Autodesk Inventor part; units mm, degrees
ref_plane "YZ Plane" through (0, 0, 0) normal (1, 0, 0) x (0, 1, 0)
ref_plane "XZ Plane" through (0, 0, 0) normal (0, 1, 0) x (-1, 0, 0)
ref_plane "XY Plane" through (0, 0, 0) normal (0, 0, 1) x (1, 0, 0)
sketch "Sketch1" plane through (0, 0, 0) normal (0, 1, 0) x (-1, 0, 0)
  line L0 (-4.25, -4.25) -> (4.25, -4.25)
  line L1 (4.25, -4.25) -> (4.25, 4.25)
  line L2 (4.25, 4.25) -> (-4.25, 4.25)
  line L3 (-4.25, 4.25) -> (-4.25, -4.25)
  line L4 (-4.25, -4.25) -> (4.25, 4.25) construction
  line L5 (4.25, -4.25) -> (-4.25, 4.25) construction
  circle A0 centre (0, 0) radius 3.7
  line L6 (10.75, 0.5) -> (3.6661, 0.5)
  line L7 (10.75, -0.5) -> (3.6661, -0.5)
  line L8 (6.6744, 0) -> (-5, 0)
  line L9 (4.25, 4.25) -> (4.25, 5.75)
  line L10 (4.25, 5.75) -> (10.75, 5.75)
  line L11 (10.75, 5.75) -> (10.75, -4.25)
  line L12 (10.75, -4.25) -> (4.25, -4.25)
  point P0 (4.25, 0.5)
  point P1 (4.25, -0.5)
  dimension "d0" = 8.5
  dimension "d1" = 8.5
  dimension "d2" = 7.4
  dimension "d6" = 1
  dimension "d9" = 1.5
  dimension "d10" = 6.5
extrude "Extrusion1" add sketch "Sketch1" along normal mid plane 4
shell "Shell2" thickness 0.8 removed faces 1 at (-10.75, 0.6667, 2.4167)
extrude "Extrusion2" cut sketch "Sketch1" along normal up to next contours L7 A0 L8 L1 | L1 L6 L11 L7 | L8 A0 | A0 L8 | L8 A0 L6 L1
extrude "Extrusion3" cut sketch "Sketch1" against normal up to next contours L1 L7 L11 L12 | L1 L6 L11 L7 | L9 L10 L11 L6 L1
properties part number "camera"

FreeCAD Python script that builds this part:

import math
import FreeCAD as App
import Part
import Sketcher
Q = App.Units.Quantity


def faces_at(feature, points):
    """Names of the faces that lie closest to the given points."""
    faces = feature.Shape.Faces
    near = lambda p: min(range(len(faces)), key=lambda i: faces[i].distToShape(Part.Vertex(*p))[0])
    return sorted({f"Face{near(p) + 1}" for p in points})

doc = App.newDocument("Part")
body = doc.addObject("PartDesign::Body", "Body")

# Sketch on XZ plane
sketch1 = body.newObject("Sketcher::SketchObject", "Sketch")
sketch1.AttachmentSupport = (doc.getObject("XZ_Plane"), [""])
sketch1.MapMode = "FlatFace"
sketch1.addGeometry(Part.LineSegment(App.Vector(4.2, -4.2, 0), App.Vector(-10.8, -4.2, 0)), False)
sketch1.addGeometry(Part.LineSegment(App.Vector(-10.8, -4.2, 0), App.Vector(-10.8, 5.8, 0)), False)
sketch1.addGeometry(Part.LineSegment(App.Vector(-10.8, 5.8, 0), App.Vector(-4.2, 5.8, 0)), False)
sketch1.addGeometry(Part.LineSegment(App.Vector(-4.2, 5.8, 0), App.Vector(-4.2, 4.2, 0)), False)
sketch1.addGeometry(Part.LineSegment(App.Vector(-4.2, 4.2, 0), App.Vector(4.2, 4.2, 0)), False)
sketch1.addGeometry(Part.LineSegment(App.Vector(4.2, 4.2, 0), App.Vector(4.2, -4.2, 0)), False)
sketch1.addConstraint(Sketcher.Constraint("Coincident", 0, 2, 1, 1))
sketch1.addConstraint(Sketcher.Constraint("Coincident", 1, 2, 2, 1))
sketch1.addConstraint(Sketcher.Constraint("Coincident", 2, 2, 3, 1))
sketch1.addConstraint(Sketcher.Constraint("Coincident", 3, 2, 4, 1))
sketch1.addConstraint(Sketcher.Constraint("Coincident", 4, 2, 5, 1))
sketch1.addConstraint(Sketcher.Constraint("Coincident", 5, 2, 0, 1))
sketch1.addConstraint(Sketcher.Constraint("Horizontal", 0))
sketch1.addConstraint(Sketcher.Constraint("Vertical", 1))
sketch1.addConstraint(Sketcher.Constraint("Horizontal", 2))
sketch1.addConstraint(Sketcher.Constraint("Vertical", 3))
sketch1.addConstraint(Sketcher.Constraint("Horizontal", 4))
sketch1.addConstraint(Sketcher.Constraint("Vertical", 5))
sketch1.addConstraint(Sketcher.Constraint("Symmetric", 3, 2, 5, 2, -1, 1))
sketch1.addConstraint(Sketcher.Constraint("Equal", 4, 5))
sketch1.addConstraint(Sketcher.Constraint("DistanceX", 2, 1, 2, 2, Q("6.5 mm")))
sketch1.addConstraint(Sketcher.Constraint("DistanceX", 4, 1, 4, 2, Q("8.5 mm")))
sketch1.addConstraint(Sketcher.Constraint("DistanceY", 3, 2, 3, 1, Q("1.5 mm")))
pad1 = body.newObject("PartDesign::Pad", "Pad")
pad1.Profile = sketch1
pad1.Length = 4
pad1.Midplane = True
doc.recompute()

thickness = body.newObject("PartDesign::Thickness", "Thickness")
thickness.Base = (pad1, faces_at(pad1, [(-10.75, 0.667, 2.417)]))
thickness.Value = 0.8
thickness.Reversed = True
thickness.Join = "Intersection"

# Sketch on XZ plane
sketch2 = body.newObject("Sketcher::SketchObject", "Sketch001")
sketch2.AttachmentSupport = (doc.getObject("XZ_Plane"), [""])
sketch2.MapMode = "FlatFace"
sketch2.addGeometry(Part.LineSegment(App.Vector(-3.7, -0.5, 0), App.Vector(-10.8, -0.5, 0)), False)
sketch2.addGeometry(Part.LineSegment(App.Vector(-10.8, -0.5, 0), App.Vector(-10.8, 0.5, 0)), False)
sketch2.addGeometry(Part.LineSegment(App.Vector(-10.8, 0.5, 0), App.Vector(-3.7, 0.5, 0)), False)
sketch2.addGeometry(Part.ArcOfCircle(Part.Circle(App.Vector(0, 0, 0), App.Vector(0, 0, 1), 3.7), math.radians(-172), math.radians(172)), False)
sketch2.addConstraint(Sketcher.Constraint("Coincident", 0, 2, 1, 1))
sketch2.addConstraint(Sketcher.Constraint("Coincident", 1, 2, 2, 1))
sketch2.addConstraint(Sketcher.Constraint("Coincident", 2, 2, 3, 2))
sketch2.addConstraint(Sketcher.Constraint("Coincident", 3, 1, 0, 1))
sketch2.addConstraint(Sketcher.Constraint("Horizontal", 0))
sketch2.addConstraint(Sketcher.Constraint("Vertical", 1))
sketch2.addConstraint(Sketcher.Constraint("Horizontal", 2))
sketch2.addConstraint(Sketcher.Constraint("Coincident", 3, 3, -1, 1))
sketch2.addConstraint(Sketcher.Constraint("Vertical", 2, 2, 3, 1))
sketch2.addConstraint(Sketcher.Constraint("Radius", 3, Q("3.7 mm")))
sketch2.addConstraint(Sketcher.Constraint("DistanceY", 1, 1, 1, 2, Q("1 mm")))
sketch2.addConstraint(Sketcher.Constraint("DistanceX", 0, 2, 0, 1, Q("7.084 mm")))
pocket1 = body.newObject("PartDesign::Pocket", "Pocket")
pocket1.Profile = sketch2
pocket1.Length = 2

# Sketch on XZ plane
sketch3 = body.newObject("Sketcher::SketchObject", "Sketch002")
sketch3.AttachmentSupport = (doc.getObject("XZ_Plane"), [""])
sketch3.MapMode = "FlatFace"
sketch3.addGeometry(Part.LineSegment(App.Vector(-4, -4, 0), App.Vector(-11, -4, 0)), False)
sketch3.addGeometry(Part.LineSegment(App.Vector(-11, -4, 0), App.Vector(-11, 6, 0)), False)
sketch3.addGeometry(Part.LineSegment(App.Vector(-11, 6, 0), App.Vector(-4, 6, 0)), False)
sketch3.addGeometry(Part.LineSegment(App.Vector(-4, 6, 0), App.Vector(-4, -4, 0)), False)
sketch3.addConstraint(Sketcher.Constraint("Coincident", 0, 2, 1, 1))
sketch3.addConstraint(Sketcher.Constraint("Coincident", 1, 2, 2, 1))
sketch3.addConstraint(Sketcher.Constraint("Coincident", 2, 2, 3, 1))
sketch3.addConstraint(Sketcher.Constraint("Coincident", 3, 2, 0, 1))
sketch3.addConstraint(Sketcher.Constraint("Horizontal", 0))
sketch3.addConstraint(Sketcher.Constraint("Vertical", 1))
sketch3.addConstraint(Sketcher.Constraint("Horizontal", 2))
sketch3.addConstraint(Sketcher.Constraint("Vertical", 3))
sketch3.addConstraint(Sketcher.Constraint("DistanceX", 0, 2, 0, 1, Q("6.5 mm")))
sketch3.addConstraint(Sketcher.Constraint("DistanceY", 1, 1, 1, 2, Q("10 mm")))
sketch3.addConstraint(Sketcher.Constraint("DistanceX", 0, 2, -1, 1, Q("10.75 mm")))
sketch3.addConstraint(Sketcher.Constraint("DistanceY", 0, 2, -1, 1, Q("4.25 mm")))
pocket2 = body.newObject("PartDesign::Pocket", "Pocket001")
pocket2.Profile = sketch3
pocket2.Length = 2
pocket2.Reversed = True

doc.recompute()
